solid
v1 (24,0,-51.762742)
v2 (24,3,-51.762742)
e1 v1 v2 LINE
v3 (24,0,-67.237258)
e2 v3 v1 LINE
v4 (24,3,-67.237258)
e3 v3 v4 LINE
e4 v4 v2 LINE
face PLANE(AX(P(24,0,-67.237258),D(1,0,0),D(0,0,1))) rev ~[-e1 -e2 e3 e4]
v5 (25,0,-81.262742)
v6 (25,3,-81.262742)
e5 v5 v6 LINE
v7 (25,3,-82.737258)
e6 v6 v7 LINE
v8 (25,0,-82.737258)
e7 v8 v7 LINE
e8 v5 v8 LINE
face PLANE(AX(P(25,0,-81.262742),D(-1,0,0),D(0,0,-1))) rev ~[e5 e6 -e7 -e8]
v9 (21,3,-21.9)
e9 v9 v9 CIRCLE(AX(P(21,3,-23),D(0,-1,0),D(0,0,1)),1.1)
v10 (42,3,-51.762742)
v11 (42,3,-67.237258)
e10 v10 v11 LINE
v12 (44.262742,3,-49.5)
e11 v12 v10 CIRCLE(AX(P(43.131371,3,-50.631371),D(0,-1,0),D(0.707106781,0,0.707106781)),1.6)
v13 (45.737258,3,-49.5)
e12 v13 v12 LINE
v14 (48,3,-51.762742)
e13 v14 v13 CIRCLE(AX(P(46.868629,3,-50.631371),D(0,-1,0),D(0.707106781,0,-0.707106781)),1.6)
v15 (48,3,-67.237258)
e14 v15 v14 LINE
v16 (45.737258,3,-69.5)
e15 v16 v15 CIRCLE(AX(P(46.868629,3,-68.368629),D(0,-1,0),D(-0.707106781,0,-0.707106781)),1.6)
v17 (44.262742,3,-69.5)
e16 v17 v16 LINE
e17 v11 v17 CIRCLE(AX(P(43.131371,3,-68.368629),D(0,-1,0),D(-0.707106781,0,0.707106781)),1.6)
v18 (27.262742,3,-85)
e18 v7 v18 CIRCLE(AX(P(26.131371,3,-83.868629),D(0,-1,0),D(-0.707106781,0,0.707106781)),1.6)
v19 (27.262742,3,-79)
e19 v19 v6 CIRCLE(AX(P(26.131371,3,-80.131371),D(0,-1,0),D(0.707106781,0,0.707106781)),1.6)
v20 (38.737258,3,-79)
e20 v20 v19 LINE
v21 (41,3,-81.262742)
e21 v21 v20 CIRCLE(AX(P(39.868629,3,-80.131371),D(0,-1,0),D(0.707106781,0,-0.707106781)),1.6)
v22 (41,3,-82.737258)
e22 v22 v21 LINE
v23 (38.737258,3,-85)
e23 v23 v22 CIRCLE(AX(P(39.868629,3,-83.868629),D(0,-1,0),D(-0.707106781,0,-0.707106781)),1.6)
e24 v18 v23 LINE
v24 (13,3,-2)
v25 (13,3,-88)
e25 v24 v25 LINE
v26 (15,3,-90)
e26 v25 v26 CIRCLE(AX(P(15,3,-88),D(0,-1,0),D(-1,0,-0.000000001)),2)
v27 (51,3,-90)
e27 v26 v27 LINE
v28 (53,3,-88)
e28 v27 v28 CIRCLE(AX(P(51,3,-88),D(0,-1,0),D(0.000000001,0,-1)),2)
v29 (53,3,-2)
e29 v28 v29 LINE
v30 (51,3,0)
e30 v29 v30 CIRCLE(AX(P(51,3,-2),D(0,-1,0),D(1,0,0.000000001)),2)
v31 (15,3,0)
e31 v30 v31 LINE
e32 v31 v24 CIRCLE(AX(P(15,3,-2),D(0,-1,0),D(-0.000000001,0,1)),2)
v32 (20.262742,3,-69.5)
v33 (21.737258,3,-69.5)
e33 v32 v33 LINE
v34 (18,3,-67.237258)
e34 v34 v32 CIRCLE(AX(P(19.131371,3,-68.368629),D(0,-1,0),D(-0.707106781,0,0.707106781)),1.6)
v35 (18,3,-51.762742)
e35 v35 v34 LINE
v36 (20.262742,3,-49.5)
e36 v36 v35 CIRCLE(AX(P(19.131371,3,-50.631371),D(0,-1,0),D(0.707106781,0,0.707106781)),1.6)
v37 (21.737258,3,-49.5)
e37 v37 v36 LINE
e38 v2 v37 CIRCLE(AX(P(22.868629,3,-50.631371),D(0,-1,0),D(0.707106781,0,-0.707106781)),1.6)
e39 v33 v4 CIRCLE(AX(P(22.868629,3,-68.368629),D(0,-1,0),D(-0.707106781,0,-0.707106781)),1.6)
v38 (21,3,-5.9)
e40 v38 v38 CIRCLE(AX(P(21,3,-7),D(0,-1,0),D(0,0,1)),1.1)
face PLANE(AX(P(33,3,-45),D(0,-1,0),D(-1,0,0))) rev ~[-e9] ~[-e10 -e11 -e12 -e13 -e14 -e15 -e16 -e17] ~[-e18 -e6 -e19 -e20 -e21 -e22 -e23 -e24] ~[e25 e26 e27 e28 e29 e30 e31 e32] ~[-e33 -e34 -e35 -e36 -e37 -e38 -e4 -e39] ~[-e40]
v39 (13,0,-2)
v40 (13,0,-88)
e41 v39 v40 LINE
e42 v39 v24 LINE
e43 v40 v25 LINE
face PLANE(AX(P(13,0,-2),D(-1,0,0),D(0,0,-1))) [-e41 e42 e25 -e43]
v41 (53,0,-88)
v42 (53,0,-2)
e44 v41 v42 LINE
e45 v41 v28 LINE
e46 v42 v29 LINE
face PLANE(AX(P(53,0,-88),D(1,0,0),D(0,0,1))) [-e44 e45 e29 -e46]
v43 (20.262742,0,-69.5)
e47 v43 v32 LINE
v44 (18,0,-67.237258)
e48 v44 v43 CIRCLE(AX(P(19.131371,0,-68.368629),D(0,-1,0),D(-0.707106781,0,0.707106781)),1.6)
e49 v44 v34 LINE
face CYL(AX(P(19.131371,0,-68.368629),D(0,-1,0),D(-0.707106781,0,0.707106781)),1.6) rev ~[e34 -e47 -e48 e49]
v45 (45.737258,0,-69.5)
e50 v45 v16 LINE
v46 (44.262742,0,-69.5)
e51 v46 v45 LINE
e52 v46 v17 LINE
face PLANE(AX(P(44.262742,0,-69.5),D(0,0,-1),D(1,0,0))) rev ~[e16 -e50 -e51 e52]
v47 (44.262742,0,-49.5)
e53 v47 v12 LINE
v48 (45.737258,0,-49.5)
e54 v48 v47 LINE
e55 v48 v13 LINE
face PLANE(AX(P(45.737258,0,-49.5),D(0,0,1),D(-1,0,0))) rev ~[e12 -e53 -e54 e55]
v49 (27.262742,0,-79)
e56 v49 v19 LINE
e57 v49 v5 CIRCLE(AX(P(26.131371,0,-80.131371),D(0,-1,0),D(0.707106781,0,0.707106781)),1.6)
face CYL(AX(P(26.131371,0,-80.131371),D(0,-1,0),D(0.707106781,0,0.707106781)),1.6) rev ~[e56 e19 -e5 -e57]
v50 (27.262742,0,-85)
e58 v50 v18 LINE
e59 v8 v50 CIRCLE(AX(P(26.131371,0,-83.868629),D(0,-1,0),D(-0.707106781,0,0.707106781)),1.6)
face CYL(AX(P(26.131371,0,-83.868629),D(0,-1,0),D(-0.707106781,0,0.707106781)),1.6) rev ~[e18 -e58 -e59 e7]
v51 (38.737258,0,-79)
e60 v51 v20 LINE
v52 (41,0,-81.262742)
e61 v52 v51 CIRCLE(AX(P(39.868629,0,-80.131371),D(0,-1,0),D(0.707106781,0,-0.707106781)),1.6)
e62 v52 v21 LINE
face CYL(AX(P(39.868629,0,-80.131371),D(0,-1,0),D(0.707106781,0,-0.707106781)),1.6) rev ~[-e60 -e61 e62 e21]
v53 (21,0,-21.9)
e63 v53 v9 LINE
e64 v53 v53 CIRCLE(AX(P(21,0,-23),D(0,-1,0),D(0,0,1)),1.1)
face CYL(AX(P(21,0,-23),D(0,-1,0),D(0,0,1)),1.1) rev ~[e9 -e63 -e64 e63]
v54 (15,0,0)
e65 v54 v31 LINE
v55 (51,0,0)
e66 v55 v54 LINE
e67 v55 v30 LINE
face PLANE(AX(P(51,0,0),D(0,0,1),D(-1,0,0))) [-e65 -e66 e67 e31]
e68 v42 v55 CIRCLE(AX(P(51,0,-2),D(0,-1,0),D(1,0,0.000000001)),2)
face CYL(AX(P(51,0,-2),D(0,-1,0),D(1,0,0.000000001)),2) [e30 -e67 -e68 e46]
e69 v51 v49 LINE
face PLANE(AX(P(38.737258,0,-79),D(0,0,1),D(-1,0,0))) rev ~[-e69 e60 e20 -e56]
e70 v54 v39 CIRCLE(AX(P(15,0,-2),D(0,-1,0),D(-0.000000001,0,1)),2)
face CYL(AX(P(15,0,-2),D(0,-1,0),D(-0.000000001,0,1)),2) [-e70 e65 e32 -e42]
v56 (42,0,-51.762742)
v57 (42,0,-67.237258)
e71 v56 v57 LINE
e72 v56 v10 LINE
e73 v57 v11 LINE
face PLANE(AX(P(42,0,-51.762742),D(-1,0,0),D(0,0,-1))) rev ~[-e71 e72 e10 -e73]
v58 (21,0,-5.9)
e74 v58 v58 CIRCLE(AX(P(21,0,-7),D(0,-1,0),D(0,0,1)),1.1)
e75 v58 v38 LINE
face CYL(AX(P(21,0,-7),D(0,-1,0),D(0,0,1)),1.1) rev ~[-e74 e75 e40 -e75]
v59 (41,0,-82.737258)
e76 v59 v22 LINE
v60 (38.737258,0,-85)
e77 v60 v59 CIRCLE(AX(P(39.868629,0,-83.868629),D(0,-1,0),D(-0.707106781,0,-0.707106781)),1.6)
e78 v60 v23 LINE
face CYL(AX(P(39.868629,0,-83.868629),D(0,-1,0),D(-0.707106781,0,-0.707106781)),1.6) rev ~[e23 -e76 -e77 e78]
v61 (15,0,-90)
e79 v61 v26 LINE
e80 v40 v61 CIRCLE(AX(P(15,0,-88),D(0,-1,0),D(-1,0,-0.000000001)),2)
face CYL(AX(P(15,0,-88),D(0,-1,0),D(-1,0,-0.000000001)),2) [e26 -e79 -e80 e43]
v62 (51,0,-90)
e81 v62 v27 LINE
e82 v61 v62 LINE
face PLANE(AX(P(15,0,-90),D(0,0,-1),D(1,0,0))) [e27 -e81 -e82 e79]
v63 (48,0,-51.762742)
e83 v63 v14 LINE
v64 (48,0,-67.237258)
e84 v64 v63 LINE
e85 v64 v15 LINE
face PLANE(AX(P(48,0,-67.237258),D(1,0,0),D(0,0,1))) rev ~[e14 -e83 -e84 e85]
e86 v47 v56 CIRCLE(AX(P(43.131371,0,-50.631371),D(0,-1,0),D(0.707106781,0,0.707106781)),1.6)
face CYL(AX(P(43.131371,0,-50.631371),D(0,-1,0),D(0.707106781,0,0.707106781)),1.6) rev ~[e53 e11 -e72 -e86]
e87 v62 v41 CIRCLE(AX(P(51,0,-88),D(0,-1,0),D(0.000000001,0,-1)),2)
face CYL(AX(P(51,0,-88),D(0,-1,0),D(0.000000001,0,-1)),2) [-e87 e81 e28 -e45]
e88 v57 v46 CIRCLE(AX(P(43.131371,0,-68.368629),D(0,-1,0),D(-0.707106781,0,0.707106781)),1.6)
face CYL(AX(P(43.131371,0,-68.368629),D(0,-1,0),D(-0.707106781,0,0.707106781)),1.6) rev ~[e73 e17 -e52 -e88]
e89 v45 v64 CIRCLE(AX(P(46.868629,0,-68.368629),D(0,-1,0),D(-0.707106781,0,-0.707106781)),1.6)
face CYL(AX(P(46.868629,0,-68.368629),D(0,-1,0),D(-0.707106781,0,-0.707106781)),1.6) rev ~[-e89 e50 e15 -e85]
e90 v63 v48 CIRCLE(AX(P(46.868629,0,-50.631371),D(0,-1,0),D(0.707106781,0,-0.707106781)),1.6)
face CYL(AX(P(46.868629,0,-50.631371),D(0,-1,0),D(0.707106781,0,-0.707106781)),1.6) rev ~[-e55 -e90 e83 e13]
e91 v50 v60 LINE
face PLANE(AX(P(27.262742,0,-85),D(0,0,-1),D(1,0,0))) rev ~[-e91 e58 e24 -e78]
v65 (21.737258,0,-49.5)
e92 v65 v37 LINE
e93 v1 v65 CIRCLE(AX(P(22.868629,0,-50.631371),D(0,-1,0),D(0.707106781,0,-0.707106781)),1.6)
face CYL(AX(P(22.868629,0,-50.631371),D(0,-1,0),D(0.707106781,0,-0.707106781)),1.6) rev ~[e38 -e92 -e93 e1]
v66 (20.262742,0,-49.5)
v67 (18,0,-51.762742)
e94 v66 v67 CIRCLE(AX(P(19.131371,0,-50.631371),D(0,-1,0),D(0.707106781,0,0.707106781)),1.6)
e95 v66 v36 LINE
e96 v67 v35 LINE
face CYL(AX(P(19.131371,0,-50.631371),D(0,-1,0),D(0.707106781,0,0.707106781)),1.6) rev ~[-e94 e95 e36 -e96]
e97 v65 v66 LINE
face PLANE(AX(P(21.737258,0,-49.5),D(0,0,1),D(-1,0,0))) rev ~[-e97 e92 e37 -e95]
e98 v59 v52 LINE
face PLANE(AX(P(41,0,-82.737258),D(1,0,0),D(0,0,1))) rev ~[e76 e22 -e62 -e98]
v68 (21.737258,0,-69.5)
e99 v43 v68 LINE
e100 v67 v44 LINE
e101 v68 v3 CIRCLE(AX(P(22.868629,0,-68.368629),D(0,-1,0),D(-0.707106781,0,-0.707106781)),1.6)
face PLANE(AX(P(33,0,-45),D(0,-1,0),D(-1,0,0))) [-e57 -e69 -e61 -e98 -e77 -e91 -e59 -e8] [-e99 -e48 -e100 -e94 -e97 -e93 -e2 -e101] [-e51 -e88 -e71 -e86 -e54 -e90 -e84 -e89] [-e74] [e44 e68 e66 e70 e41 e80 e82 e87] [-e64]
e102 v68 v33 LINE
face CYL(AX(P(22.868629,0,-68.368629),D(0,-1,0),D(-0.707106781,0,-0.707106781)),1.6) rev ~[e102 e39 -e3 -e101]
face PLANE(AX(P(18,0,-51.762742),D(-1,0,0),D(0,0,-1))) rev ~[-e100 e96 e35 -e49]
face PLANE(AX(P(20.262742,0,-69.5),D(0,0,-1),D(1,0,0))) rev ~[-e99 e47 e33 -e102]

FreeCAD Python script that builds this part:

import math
import FreeCAD as App
import Part
import Sketcher

V = App.Vector
Q = App.Units.Quantity

doc = App.newDocument("Part")
body = doc.addObject("PartDesign::Body", "Body")

# Sketch on XZ plane
sketch1 = doc.addObject("Sketcher::SketchObject", "Sketch")
body.addObject(sketch1)
sketch1.AttachmentSupport = (doc.XZ_Plane, [""])
sketch1.MapMode = "FlatFace"
sketch1.addGeometry([
    Part.LineSegment(V(13, -88, 0), V(13, -2, 0)),  # 0
    Part.ArcOfCircle(Part.Circle(V(15, -2, 0), V(0, 0, 1), 2), math.radians(90), math.radians(180)),  # 1
    Part.LineSegment(V(15, 0, 0), V(51, 0, 0)),  # 2
    Part.ArcOfCircle(Part.Circle(V(51, -2, 0), V(0, 0, 1), 2), math.radians(0), math.radians(90)),  # 3
    Part.LineSegment(V(53, -2, 0), V(53, -88, 0)),  # 4
    Part.ArcOfCircle(Part.Circle(V(51, -88, 0), V(0, 0, 1), 2), math.radians(-90), math.radians(0)),  # 5
    Part.LineSegment(V(51, -90, 0), V(15, -90, 0)),  # 6
    Part.ArcOfCircle(Part.Circle(V(15, -88, 0), V(0, 0, 1), 2), math.radians(-180), math.radians(-90)),  # 7
], False)
sketch1.addConstraint([
    Sketcher.Constraint("Tangent", 0, 2, 1, 2),
    Sketcher.Constraint("Tangent", 1, 1, 2, 1),
    Sketcher.Constraint("Tangent", 2, 2, 3, 2),
    Sketcher.Constraint("Tangent", 3, 1, 4, 1),
    Sketcher.Constraint("Tangent", 4, 2, 5, 2),
    Sketcher.Constraint("Tangent", 5, 1, 6, 1),
    Sketcher.Constraint("Tangent", 6, 2, 7, 2),
    Sketcher.Constraint("Tangent", 7, 1, 0, 1),
    Sketcher.Constraint("Vertical", 0),
    Sketcher.Constraint("Horizontal", 2),
    Sketcher.Constraint("Vertical", 4),
    Sketcher.Constraint("Horizontal", 6),
    Sketcher.Constraint("Equal", 1, 3),
    Sketcher.Constraint("Equal", 3, 5),
    Sketcher.Constraint("Equal", 5, 7),
    Sketcher.Constraint("PointOnObject", 1, 1, -1),
    Sketcher.Constraint("Radius", 1, Q("2 mm")),
    Sketcher.Constraint("DistanceX", 2, 1, 2, 2, Q("36 mm")),
    Sketcher.Constraint("DistanceY", 0, 1, 0, 2, Q("86 mm")),
    Sketcher.Constraint("DistanceX", -1, 1, 1, 3, Q("15 mm")),
])
pad1 = doc.addObject("PartDesign::Pad", "Pad")
body.addObject(pad1)
pad1.Profile = sketch1
pad1.Length = 3
pad1.Reversed = True

# Sketch on XZ plane
sketch2 = doc.addObject("Sketcher::SketchObject", "Sketch001")
body.addObject(sketch2)
sketch2.AttachmentSupport = (doc.XZ_Plane, [""])
sketch2.MapMode = "FlatFace"
sketch2.addGeometry([
    Part.Circle(V(21, -7, 0), V(0, 0, 1), 1.1),  # 0
    Part.Circle(V(21, -23, 0), V(0, 0, 1), 1.1),  # 1
    Part.LineSegment(V(41, -82.737258, 0), V(41, -81.262742, 0)),  # 2
    Part.ArcOfCircle(Part.Circle(V(39.868629, -80.131371, 0), V(0, 0, 1), 1.6), math.radians(-45), math.radians(135)),  # 3
    Part.LineSegment(V(38.737258, -79, 0), V(27.262742, -79, 0)),  # 4
    Part.ArcOfCircle(Part.Circle(V(26.131371, -80.131371, 0), V(0, 0, 1), 1.6), math.radians(45), math.radians(225)),  # 5
    Part.LineSegment(V(25, -81.262742, 0), V(25, -82.737258, 0)),  # 6
    Part.ArcOfCircle(Part.Circle(V(26.131371, -83.868629, 0), V(0, 0, 1), 1.6), math.radians(135), math.radians(315)),  # 7
    Part.LineSegment(V(27.262742, -85, 0), V(38.737258, -85, 0)),  # 8
    Part.ArcOfCircle(Part.Circle(V(39.868629, -83.868629, 0), V(0, 0, 1), 1.6), math.radians(-135), math.radians(45)),  # 9
    Part.LineSegment(V(45.737258, -49.5, 0), V(44.262742, -49.5, 0)),  # 10
    Part.ArcOfCircle(Part.Circle(V(43.131371, -50.631371, 0), V(0, 0, 1), 1.6), math.radians(45), math.radians(225)),  # 11
    Part.LineSegment(V(42, -51.762742, 0), V(42, -67.237258, 0)),  # 12
    Part.ArcOfCircle(Part.Circle(V(43.131371, -68.368629, 0), V(0, 0, 1), 1.6), math.radians(135), math.radians(315)),  # 13
    Part.LineSegment(V(44.262742, -69.5, 0), V(45.737258, -69.5, 0)),  # 14
    Part.ArcOfCircle(Part.Circle(V(46.868629, -68.368629, 0), V(0, 0, 1), 1.6), math.radians(-135), math.radians(45)),  # 15
    Part.LineSegment(V(48, -67.237258, 0), V(48, -51.762742, 0)),  # 16
    Part.ArcOfCircle(Part.Circle(V(46.868629, -50.631371, 0), V(0, 0, 1), 1.6), math.radians(-45), math.radians(135)),  # 17
    Part.LineSegment(V(24, -67.237258, 0), V(24, -51.762742, 0)),  # 18
    Part.ArcOfCircle(Part.Circle(V(22.868629, -50.631371, 0), V(0, 0, 1), 1.6), math.radians(-45), math.radians(135)),  # 19
    Part.LineSegment(V(21.737258, -49.5, 0), V(20.262742, -49.5, 0)),  # 20
    Part.ArcOfCircle(Part.Circle(V(19.131371, -50.631371, 0), V(0, 0, 1), 1.6), math.radians(45), math.radians(225)),  # 21
    Part.LineSegment(V(18, -51.762742, 0), V(18, -67.237258, 0)),  # 22
    Part.ArcOfCircle(Part.Circle(V(19.131371, -68.368629, 0), V(0, 0, 1), 1.6), math.radians(135), math.radians(315)),  # 23
    Part.LineSegment(V(20.262742, -69.5, 0), V(21.737258, -69.5, 0)),  # 24
    Part.ArcOfCircle(Part.Circle(V(22.868629, -68.368629, 0), V(0, 0, 1), 1.6), math.radians(-135), math.radians(45)),  # 25
], False)
sketch2.addConstraint([
    Sketcher.Constraint("Coincident", 2, 2, 3, 1),
    Sketcher.Constraint("Coincident", 3, 2, 4, 1),
    Sketcher.Constraint("Coincident", 4, 2, 5, 1),
    Sketcher.Constraint("Coincident", 5, 2, 6, 1),
    Sketcher.Constraint("Coincident", 6, 2, 7, 1),
    Sketcher.Constraint("Coincident", 7, 2, 8, 1),
    Sketcher.Constraint("Coincident", 8, 2, 9, 1),
    Sketcher.Constraint("Coincident", 9, 2, 2, 1),
    Sketcher.Constraint("Coincident", 10, 2, 11, 1),
    Sketcher.Constraint("Coincident", 11, 2, 12, 1),
    Sketcher.Constraint("Coincident", 12, 2, 13, 1),
    Sketcher.Constraint("Coincident", 13, 2, 14, 1),
    Sketcher.Constraint("Coincident", 14, 2, 15, 1),
    Sketcher.Constraint("Coincident", 15, 2, 16, 1),
    Sketcher.Constraint("Coincident", 16, 2, 17, 1),
    Sketcher.Constraint("Coincident", 17, 2, 10, 1),
    Sketcher.Constraint("Coincident", 18, 2, 19, 1),
    Sketcher.Constraint("Coincident", 19, 2, 20, 1),
    Sketcher.Constraint("Coincident", 20, 2, 21, 1),
    Sketcher.Constraint("Coincident", 21, 2, 22, 1),
    Sketcher.Constraint("Coincident", 22, 2, 23, 1),
    Sketcher.Constraint("Coincident", 23, 2, 24, 1),
    Sketcher.Constraint("Coincident", 24, 2, 25, 1),
    Sketcher.Constraint("Coincident", 25, 2, 18, 1),
    Sketcher.Constraint("Vertical", 2),
    Sketcher.Constraint("Horizontal", 4),
    Sketcher.Constraint("Vertical", 6),
    Sketcher.Constraint("Horizontal", 8),
    Sketcher.Constraint("Horizontal", 10),
    Sketcher.Constraint("Vertical", 12),
    Sketcher.Constraint("Horizontal", 14),
    Sketcher.Constraint("Vertical", 16),
    Sketcher.Constraint("Vertical", 18),
    Sketcher.Constraint("Horizontal", 20),
    Sketcher.Constraint("Vertical", 22),
    Sketcher.Constraint("Horizontal", 24),
    Sketcher.Constraint("Equal", 0, 1),
    Sketcher.Constraint("Equal", 3, 5),
    Sketcher.Constraint("Equal", 5, 7),
    Sketcher.Constraint("Equal", 7, 9),
    Sketcher.Constraint("Equal", 9, 11),
    Sketcher.Constraint("Equal", 11, 13),
    Sketcher.Constraint("Equal", 13, 15),
    Sketcher.Constraint("Equal", 15, 17),
    Sketcher.Constraint("Equal", 17, 19),
    Sketcher.Constraint("Equal", 19, 21),
    Sketcher.Constraint("Equal", 21, 23),
    Sketcher.Constraint("Equal", 23, 25),
    Sketcher.Constraint("Horizontal", 3, 3, 5, 3),
    Sketcher.Constraint("Horizontal", 7, 3, 9, 3),
    Sketcher.Constraint("Horizontal", 13, 3, 15, 3),
    Sketcher.Constraint("Horizontal", 11, 3, 17, 3),
    Sketcher.Constraint("Horizontal", 17, 3, 19, 3),
    Sketcher.Constraint("Horizontal", 19, 3, 21, 3),
    Sketcher.Constraint("Horizontal", 15, 3, 23, 3),
    Sketcher.Constraint("Horizontal", 23, 3, 25, 3),
    Sketcher.Constraint("Horizontal", 2, 2, 5, 2),
    Sketcher.Constraint("Horizontal", 6, 2, 9, 2),
    Sketcher.Constraint("Horizontal", 12, 2, 15, 2),
    Sketcher.Constraint("Horizontal", 11, 2, 16, 2),
    Sketcher.Constraint("Horizontal", 16, 2, 18, 2),
    Sketcher.Constraint("Horizontal", 17, 2, 19, 2),
    Sketcher.Constraint("Horizontal", 18, 2, 21, 2),
    Sketcher.Constraint("Horizontal", 15, 2, 22, 2),
    Sketcher.Constraint("Horizontal", 14, 2, 23, 2),
    Sketcher.Constraint("Horizontal", 22, 2, 25, 2),
    Sketcher.Constraint("Vertical", 0, 3, 1, 3),
    Sketcher.Constraint("Vertical", 5, 3, 7, 3),
    Sketcher.Constraint("Vertical", 11, 3, 13, 3),
    Sketcher.Constraint("Vertical", 4, 2, 7, 2),
    Sketcher.Constraint("Vertical", 10, 2, 13, 2),
    Sketcher.Constraint("Equal", 14, 20),
    Sketcher.Constraint("Equal", 24, 2),
    Sketcher.Constraint("Diameter", 0, Q("2.2 mm")),
    Sketcher.Constraint("Radius", 3, Q("1.6 mm")),
    Sketcher.Constraint("DistanceX", -1, 1, 0, 3, Q("21 mm")),
    Sketcher.Constraint("DistanceY", 0, 3, -1, 1, Q("7 mm")),
    Sketcher.Constraint("DistanceY", 1, 3, -1, 1, Q("23 mm")),
    Sketcher.Constraint("DistanceX", -1, 1, 2, 2, Q("41 mm")),
    Sketcher.Constraint("DistanceY", 3, 2, -1, 1, Q("79 mm")),
    Sketcher.Constraint("DistanceX", -1, 1, 5, 2, Q("25 mm")),
    Sketcher.Constraint("DistanceY", 7, 2, -1, 1, Q("85 mm")),
    Sketcher.Constraint("DistanceX", -1, 1, 11, 2, Q("42 mm")),
    Sketcher.Constraint("DistanceX", -1, 1, 15, 2, Q("48 mm")),
    Sketcher.Constraint("DistanceX", -1, 1, 18, 2, Q("24 mm")),
    Sketcher.Constraint("DistanceX", 5, 3, 11, 3, Q("17 mm")),
    Sketcher.Constraint("DistanceX", 3, 2, 14, 2, Q("7 mm")),
    Sketcher.Constraint("DistanceY", 10, 2, -1, 1, Q("49.5 mm")),
    Sketcher.Constraint("DistanceY", 13, 2, -1, 1, Q("69.5 mm")),
    Sketcher.Constraint("DistanceX", -1, 1, 3, 3, Q("39.868629 mm")),
])
pocket1 = doc.addObject("PartDesign::Pocket", "Pocket")
body.addObject(pocket1)
pocket1.Profile = sketch2
pocket1.Type = "ThroughAll"

doc.recompute()
